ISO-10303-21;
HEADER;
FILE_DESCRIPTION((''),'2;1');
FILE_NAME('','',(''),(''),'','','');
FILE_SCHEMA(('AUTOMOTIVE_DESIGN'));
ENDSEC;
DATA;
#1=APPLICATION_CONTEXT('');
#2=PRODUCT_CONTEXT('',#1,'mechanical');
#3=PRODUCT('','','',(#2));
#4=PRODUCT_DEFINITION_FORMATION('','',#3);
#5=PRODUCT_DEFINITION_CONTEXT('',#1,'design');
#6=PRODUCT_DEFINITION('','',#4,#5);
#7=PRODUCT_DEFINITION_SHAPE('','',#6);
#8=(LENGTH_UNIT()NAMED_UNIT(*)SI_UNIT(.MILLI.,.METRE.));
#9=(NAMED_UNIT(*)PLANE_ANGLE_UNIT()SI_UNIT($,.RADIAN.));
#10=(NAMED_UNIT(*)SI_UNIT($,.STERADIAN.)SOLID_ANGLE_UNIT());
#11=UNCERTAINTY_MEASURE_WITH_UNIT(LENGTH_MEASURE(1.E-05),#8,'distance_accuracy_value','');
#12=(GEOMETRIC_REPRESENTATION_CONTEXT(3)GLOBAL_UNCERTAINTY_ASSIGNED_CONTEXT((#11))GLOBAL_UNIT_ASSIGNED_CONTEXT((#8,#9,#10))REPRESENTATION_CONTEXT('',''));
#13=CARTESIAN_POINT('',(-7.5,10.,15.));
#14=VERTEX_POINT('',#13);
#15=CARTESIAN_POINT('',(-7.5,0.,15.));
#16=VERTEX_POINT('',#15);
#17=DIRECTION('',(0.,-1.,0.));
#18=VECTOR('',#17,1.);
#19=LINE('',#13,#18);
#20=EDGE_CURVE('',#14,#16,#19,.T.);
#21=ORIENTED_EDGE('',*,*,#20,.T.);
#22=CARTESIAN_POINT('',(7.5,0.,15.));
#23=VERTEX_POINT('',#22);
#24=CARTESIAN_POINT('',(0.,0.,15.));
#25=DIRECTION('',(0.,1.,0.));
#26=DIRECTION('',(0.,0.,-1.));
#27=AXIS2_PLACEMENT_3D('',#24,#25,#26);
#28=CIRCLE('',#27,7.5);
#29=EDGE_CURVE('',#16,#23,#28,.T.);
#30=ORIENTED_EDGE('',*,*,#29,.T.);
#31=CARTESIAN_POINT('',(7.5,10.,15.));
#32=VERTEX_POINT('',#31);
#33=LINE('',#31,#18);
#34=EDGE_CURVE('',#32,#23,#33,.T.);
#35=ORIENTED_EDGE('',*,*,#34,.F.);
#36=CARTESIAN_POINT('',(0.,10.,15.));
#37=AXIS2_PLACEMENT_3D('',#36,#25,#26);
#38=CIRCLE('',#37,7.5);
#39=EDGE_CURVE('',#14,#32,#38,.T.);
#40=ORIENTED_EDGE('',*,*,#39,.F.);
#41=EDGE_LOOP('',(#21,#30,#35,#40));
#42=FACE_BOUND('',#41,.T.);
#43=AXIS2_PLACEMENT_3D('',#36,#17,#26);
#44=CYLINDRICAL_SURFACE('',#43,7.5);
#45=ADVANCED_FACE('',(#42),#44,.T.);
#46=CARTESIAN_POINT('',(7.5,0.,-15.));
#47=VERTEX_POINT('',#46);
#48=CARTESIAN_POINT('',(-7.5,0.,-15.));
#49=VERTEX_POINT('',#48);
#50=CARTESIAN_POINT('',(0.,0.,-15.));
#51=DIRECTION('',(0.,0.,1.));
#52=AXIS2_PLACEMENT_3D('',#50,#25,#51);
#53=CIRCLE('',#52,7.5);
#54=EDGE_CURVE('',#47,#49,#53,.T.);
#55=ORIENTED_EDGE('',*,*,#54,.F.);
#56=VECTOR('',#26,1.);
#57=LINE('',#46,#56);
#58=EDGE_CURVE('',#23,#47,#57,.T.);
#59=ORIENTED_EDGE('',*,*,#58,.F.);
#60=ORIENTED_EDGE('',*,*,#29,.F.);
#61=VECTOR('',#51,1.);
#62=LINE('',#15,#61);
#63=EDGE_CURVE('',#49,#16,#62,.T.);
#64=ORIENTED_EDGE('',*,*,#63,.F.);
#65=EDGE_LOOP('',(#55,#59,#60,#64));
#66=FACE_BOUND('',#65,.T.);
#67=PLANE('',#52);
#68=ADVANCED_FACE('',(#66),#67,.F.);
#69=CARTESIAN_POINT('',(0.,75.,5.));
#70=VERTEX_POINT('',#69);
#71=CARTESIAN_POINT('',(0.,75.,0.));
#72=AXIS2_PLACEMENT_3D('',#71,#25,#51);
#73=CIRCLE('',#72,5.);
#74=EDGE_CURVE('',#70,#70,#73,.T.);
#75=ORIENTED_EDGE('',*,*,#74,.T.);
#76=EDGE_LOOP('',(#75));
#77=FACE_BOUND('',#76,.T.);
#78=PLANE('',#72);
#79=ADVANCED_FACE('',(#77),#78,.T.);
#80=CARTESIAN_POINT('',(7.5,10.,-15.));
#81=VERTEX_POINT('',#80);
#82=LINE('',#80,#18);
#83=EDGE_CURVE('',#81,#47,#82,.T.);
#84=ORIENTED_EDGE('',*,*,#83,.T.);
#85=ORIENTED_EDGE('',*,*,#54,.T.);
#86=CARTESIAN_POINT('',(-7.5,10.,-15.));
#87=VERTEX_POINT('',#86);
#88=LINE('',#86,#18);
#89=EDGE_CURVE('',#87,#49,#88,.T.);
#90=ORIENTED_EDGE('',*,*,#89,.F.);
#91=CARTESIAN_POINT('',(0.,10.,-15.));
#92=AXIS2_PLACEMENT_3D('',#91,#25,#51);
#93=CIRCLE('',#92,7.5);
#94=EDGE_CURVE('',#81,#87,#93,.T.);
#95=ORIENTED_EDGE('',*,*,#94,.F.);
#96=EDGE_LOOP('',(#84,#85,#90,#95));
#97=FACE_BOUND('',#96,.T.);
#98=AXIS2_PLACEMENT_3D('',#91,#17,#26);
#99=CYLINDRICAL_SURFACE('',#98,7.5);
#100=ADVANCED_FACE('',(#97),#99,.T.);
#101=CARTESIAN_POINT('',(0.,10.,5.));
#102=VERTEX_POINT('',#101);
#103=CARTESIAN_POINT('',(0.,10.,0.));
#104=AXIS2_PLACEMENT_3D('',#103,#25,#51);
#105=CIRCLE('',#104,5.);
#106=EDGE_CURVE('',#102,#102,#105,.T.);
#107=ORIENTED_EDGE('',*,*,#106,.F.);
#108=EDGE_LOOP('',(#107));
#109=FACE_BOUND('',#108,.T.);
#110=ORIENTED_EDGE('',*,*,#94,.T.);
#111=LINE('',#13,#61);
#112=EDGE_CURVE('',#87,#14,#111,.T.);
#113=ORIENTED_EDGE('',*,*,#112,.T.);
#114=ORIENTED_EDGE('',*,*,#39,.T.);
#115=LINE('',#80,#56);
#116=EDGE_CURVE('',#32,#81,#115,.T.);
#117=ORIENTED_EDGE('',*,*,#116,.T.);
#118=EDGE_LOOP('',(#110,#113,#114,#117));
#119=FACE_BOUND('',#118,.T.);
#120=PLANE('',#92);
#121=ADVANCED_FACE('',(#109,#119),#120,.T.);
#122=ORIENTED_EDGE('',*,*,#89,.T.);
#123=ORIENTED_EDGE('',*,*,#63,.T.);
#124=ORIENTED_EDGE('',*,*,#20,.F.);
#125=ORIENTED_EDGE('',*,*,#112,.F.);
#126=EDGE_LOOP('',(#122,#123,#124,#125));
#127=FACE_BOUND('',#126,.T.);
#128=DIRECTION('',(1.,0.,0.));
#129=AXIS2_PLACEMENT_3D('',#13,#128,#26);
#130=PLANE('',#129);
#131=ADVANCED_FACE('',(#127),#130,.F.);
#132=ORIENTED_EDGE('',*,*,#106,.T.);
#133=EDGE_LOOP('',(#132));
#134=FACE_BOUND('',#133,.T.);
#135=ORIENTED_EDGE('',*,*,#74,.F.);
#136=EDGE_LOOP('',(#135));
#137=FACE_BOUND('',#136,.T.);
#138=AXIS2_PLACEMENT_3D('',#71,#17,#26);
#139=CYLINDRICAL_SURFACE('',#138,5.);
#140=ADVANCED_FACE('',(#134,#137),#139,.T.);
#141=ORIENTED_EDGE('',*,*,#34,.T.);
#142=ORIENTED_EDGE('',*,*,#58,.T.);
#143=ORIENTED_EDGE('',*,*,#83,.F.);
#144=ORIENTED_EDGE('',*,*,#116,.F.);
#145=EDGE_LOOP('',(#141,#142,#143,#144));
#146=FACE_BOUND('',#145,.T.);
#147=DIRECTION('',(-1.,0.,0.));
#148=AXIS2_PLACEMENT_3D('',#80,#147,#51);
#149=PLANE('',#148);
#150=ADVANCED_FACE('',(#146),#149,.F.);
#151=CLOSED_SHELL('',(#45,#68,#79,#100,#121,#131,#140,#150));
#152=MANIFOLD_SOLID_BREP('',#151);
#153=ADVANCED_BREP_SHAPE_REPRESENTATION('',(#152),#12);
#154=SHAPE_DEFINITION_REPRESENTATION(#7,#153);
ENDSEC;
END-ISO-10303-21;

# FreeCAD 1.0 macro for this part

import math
import FreeCAD as App
import Part
import Sketcher

doc = App.newDocument("Part")
params = doc.addObject("Spreadsheet::Sheet", "Params")
for row, (alias, value) in enumerate([
    ("sketch1_radius", "7.5 mm"),
    ("sketch1_height", "30 mm"),
    ("pad1_length", "10 mm"),
    ("sketch2_diameter", "10 mm"),
    ("pad2_length", "65 mm"),
], start=1):
    params.set(f"A{row}", alias)
    params.set(f"B{row}", "=" + value)
    params.setAlias(f"B{row}", alias)

body = doc.addObject("PartDesign::Body", "Body")

# Sketch on XZ plane
sketch1 = body.newObject("Sketcher::SketchObject", "Sketch")
sketch1.AttachmentSupport = (doc.getObject("XZ_Plane"), [""])
sketch1.MapMode = "FlatFace"
sketch1.addGeometry(Part.LineSegment(App.Vector(-7.5, -15, 0), App.Vector(-7.5, 15, 0)), False)
sketch1.addGeometry(Part.ArcOfCircle(Part.Circle(App.Vector(0, 15, 0), App.Vector(0, 0, 1), 7.5), math.radians(0), math.radians(180)), False)
sketch1.addGeometry(Part.LineSegment(App.Vector(7.5, 15, 0), App.Vector(7.5, -15, 0)), False)
sketch1.addGeometry(Part.ArcOfCircle(Part.Circle(App.Vector(0, -15, 0), App.Vector(0, 0, 1), 7.5), math.radians(180), math.radians(360)), False)
sketch1.addConstraint(Sketcher.Constraint("Tangent", 0, 2, 1, 2))
sketch1.addConstraint(Sketcher.Constraint("Tangent", 1, 1, 2, 1))
sketch1.addConstraint(Sketcher.Constraint("Tangent", 2, 2, 3, 2))
sketch1.addConstraint(Sketcher.Constraint("Tangent", 3, 1, 0, 1))
sketch1.addConstraint(Sketcher.Constraint("Vertical", 0))
sketch1.addConstraint(Sketcher.Constraint("Vertical", 2))
sketch1.addConstraint(Sketcher.Constraint("Symmetric", 1, 3, 3, 3, -1, 1))
sketch1.addConstraint(Sketcher.Constraint("Radius", 1, 7.5))
sketch1.addConstraint(Sketcher.Constraint("DistanceY", 0, 1, 0, 2, 30.0))
sketch1.setExpression("Constraints[7]", "Params.sketch1_radius")
sketch1.setExpression("Constraints[8]", "Params.sketch1_height")
pad1 = body.newObject("PartDesign::Pad", "Pad")
pad1.Profile = sketch1
pad1.setExpression("Length", "Params.pad1_length")
pad1.Reversed = True

# Sketch on XZ plane
sketch2 = body.newObject("Sketcher::SketchObject", "Sketch001")
sketch2.AttachmentSupport = (doc.getObject("XZ_Plane"), [""])
sketch2.MapMode = "FlatFace"
sketch2.AttachmentOffset = App.Placement(App.Vector(0, 0, -10), App.Rotation())
sketch2.addGeometry(Part.Circle(App.Vector(0, 0, 0), App.Vector(0, 0, 1), 5), False)
sketch2.addConstraint(Sketcher.Constraint("Coincident", 0, 3, -1, 1))
sketch2.addConstraint(Sketcher.Constraint("Diameter", 0, 10.0))
sketch2.setExpression("Constraints[1]", "Params.sketch2_diameter")
pad2 = body.newObject("PartDesign::Pad", "Pad001")
pad2.Profile = sketch2
pad2.setExpression("Length", "Params.pad2_length")
pad2.Reversed = True

doc.recompute()
